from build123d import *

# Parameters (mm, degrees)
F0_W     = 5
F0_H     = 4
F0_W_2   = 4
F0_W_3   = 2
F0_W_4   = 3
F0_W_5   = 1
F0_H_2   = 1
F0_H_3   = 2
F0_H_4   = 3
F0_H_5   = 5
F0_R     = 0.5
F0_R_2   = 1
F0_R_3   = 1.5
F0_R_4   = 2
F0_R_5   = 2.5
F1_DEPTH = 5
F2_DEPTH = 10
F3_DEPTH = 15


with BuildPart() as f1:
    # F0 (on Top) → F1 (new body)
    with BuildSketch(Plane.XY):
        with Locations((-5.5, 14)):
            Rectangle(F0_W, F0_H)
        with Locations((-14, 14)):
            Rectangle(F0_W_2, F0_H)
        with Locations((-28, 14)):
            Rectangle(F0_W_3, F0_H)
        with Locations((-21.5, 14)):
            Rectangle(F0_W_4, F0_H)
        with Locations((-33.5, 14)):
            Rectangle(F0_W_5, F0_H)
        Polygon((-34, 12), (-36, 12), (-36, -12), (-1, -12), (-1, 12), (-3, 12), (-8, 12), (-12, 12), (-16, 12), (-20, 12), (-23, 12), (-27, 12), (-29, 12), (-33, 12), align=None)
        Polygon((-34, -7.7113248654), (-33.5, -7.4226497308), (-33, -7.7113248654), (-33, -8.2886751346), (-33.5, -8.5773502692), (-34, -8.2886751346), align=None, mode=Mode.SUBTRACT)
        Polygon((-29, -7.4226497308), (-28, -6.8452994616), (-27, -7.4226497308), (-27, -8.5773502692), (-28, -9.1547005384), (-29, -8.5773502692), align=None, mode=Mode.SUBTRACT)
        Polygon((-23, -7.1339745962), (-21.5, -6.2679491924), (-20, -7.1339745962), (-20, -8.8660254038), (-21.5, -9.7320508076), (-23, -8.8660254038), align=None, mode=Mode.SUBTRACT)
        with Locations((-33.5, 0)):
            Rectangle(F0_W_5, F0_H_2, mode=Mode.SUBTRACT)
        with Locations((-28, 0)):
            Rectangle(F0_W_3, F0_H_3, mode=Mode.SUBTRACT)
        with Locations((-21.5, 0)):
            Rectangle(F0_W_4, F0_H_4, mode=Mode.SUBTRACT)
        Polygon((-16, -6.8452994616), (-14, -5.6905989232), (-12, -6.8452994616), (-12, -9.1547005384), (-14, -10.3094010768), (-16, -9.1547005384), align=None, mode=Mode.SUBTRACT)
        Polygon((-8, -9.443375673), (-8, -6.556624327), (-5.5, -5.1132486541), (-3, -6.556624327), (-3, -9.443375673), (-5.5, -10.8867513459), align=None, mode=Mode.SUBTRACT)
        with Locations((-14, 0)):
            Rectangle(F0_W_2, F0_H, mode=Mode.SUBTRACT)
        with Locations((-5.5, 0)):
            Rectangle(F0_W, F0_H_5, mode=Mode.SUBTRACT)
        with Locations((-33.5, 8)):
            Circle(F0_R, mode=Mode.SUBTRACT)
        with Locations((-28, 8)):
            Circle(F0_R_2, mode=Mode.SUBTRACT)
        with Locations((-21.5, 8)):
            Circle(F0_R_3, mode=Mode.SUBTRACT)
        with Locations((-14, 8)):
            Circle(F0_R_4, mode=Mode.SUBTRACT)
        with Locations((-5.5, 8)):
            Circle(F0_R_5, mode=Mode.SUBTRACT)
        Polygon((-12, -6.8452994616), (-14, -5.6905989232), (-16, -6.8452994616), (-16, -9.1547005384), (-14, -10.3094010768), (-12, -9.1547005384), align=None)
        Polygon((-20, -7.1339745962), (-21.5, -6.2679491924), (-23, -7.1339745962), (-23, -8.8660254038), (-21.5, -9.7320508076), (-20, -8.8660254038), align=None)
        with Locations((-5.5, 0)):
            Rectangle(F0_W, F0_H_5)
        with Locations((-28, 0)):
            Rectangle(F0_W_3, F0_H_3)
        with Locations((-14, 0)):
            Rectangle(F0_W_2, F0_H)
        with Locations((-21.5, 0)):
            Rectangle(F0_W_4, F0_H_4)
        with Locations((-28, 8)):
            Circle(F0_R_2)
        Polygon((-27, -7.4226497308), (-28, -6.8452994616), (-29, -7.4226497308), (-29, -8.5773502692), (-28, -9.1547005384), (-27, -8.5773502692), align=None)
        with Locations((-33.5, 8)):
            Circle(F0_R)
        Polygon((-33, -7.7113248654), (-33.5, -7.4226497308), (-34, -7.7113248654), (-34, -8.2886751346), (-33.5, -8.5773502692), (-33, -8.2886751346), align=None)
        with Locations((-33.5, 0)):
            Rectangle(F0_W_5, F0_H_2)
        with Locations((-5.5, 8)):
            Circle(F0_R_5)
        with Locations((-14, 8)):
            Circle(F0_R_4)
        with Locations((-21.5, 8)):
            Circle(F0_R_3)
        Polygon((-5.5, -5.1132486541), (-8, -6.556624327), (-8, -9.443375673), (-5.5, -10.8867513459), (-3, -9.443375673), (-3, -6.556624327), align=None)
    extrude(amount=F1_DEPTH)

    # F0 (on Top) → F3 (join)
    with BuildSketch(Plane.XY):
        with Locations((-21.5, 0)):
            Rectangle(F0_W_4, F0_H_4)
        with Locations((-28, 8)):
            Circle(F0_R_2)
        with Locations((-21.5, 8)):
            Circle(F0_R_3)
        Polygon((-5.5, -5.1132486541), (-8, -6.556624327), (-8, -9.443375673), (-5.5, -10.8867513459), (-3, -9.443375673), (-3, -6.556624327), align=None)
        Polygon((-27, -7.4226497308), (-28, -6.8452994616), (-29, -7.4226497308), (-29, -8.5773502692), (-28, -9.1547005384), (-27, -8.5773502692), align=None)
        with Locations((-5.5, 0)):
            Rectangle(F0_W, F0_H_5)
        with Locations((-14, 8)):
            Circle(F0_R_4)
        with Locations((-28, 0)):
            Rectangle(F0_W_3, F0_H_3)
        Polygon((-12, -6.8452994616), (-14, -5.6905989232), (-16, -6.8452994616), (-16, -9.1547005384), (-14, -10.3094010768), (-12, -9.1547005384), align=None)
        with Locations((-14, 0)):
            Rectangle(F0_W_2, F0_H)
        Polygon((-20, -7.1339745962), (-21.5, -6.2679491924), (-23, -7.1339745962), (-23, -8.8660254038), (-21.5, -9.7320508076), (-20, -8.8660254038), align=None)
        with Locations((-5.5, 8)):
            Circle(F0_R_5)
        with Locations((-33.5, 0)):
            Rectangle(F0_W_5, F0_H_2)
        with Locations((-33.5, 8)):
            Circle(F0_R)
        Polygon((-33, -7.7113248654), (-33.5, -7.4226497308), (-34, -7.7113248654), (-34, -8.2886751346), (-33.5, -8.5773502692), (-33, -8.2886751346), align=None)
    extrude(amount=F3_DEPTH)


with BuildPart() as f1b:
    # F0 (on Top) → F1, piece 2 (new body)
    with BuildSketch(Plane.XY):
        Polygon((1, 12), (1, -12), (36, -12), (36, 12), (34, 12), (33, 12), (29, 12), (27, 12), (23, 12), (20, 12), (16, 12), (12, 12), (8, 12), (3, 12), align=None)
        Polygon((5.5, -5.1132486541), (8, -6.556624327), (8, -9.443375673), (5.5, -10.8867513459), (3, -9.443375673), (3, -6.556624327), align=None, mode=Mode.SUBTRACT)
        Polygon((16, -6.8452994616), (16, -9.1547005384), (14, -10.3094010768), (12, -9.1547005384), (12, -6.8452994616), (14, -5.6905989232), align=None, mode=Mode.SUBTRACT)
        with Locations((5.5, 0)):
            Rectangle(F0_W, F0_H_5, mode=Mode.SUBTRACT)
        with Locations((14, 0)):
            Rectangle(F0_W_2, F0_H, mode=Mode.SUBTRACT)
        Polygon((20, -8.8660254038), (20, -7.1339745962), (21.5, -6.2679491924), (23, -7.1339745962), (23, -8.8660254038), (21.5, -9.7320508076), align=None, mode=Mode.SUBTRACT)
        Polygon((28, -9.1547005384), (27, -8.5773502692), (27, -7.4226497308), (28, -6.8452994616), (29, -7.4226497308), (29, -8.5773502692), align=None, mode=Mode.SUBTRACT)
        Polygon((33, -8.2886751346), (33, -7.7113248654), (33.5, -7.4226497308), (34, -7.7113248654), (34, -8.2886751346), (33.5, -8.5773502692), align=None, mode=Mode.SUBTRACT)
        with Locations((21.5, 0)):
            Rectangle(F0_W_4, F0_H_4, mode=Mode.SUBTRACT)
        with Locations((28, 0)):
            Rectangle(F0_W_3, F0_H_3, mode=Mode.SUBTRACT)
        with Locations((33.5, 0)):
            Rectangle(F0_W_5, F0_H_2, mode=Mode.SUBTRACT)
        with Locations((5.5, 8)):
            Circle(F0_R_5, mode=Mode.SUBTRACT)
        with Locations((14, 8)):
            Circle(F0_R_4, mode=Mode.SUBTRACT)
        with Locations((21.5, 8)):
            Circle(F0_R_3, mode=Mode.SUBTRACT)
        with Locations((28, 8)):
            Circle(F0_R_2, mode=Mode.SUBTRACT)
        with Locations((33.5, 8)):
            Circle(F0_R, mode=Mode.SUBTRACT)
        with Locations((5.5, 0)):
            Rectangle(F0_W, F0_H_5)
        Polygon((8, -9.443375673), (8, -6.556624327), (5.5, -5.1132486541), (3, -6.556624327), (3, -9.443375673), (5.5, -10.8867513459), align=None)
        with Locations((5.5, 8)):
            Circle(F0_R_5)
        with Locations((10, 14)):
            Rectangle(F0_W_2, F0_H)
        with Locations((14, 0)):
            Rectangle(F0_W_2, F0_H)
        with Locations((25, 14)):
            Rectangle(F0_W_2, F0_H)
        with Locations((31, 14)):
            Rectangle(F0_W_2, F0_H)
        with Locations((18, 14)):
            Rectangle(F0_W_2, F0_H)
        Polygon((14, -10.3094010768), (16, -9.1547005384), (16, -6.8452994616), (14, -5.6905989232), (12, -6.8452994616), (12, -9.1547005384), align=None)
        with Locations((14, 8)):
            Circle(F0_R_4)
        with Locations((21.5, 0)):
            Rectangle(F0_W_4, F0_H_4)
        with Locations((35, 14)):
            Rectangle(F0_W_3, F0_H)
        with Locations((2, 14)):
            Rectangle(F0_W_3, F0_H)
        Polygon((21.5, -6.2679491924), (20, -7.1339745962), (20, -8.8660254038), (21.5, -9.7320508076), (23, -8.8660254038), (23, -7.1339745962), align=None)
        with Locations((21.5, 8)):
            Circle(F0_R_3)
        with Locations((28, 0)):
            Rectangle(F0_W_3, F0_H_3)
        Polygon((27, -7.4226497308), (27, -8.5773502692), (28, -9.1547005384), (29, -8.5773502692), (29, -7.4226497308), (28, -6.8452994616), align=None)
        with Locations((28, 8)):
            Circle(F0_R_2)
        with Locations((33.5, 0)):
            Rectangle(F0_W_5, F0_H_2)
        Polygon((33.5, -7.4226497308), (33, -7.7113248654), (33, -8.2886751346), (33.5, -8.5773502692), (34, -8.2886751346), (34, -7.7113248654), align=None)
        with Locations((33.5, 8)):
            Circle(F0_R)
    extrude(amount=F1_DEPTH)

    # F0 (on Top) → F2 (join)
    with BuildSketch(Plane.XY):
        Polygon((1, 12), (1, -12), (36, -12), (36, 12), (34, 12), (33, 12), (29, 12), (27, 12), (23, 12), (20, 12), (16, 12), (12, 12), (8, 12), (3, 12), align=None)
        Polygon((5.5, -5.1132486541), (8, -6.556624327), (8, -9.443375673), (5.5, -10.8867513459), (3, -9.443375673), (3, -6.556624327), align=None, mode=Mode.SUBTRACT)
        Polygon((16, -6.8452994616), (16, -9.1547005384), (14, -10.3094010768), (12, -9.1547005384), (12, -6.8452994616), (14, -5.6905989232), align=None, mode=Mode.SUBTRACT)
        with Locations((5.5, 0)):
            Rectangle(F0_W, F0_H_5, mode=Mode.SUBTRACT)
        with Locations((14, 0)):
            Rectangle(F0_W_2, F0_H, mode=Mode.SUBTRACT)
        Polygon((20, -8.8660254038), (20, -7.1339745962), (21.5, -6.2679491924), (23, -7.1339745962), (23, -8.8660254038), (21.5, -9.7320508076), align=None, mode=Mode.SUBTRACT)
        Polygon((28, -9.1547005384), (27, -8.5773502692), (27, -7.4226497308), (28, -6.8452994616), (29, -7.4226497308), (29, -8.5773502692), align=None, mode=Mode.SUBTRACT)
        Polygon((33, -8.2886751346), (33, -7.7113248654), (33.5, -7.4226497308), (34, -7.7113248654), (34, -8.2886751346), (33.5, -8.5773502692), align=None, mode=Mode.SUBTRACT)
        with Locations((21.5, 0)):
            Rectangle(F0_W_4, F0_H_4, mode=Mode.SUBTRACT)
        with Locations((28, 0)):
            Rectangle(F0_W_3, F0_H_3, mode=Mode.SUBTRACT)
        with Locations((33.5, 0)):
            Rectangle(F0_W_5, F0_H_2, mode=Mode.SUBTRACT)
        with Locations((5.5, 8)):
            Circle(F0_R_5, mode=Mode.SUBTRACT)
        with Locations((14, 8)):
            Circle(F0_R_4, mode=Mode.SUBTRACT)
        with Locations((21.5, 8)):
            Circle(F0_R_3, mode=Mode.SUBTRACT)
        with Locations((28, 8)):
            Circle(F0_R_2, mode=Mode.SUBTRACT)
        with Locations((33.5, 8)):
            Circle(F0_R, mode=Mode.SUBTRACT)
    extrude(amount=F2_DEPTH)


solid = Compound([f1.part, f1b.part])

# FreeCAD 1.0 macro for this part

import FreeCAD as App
import Part
import Sketcher

V = App.Vector
Q = App.Units.Quantity


def add_polygon(sketch, points):
    """Adds a closed chain of lines whose ends are joined by coincident constraints."""
    first, n = sketch.GeometryCount, len(points)
    for a, b in zip(points, points[1:] + points[:1]):
        sketch.addGeometry(Part.LineSegment(App.Vector(*a, 0), App.Vector(*b, 0)), False)
    for i in range(n):
        sketch.addConstraint(Sketcher.Constraint("Coincident", first + i, 2, first + (i + 1) % n, 1))

doc = App.newDocument("Part")
body = doc.addObject("PartDesign::Body", "Body")

sketch1 = body.newObject("Sketcher::SketchObject", "Sketch")
sketch1.AttachmentSupport = (doc.getObject("XY_Plane"), [""])
sketch1.MapMode = "FlatFace"
add_polygon(sketch1, [(-8, 16), (-8, 12), (-12, 12), (-12, 16), (-16, 16), (-16, 12), (-20, 12), (-20, 16), (-23, 16), (-23, 12), (-27, 12), (-27, 16), (-29, 16), (-29, 12), (-33, 12), (-33, 16), (-34, 16), (-34, 12), (-36, 12), (-36, -12), (-1, -12), (-1, 12), (-3, 12), (-3, 16)])
sketch1.addConstraint([
    Sketcher.Constraint("Vertical", 0),
    Sketcher.Constraint("Horizontal", 1),
    Sketcher.Constraint("Vertical", 2),
    Sketcher.Constraint("Horizontal", 3),
    Sketcher.Constraint("Vertical", 4),
    Sketcher.Constraint("Horizontal", 5),
    Sketcher.Constraint("Vertical", 6),
    Sketcher.Constraint("Horizontal", 7),
    Sketcher.Constraint("Vertical", 8),
    Sketcher.Constraint("Horizontal", 9),
    Sketcher.Constraint("Vertical", 10),
    Sketcher.Constraint("Horizontal", 11),
    Sketcher.Constraint("Vertical", 12),
    Sketcher.Constraint("Horizontal", 13),
    Sketcher.Constraint("Vertical", 14),
    Sketcher.Constraint("Horizontal", 15),
    Sketcher.Constraint("Vertical", 16),
    Sketcher.Constraint("Horizontal", 17),
    Sketcher.Constraint("Vertical", 18),
    Sketcher.Constraint("Horizontal", 19),
    Sketcher.Constraint("Vertical", 20),
    Sketcher.Constraint("Horizontal", 21),
    Sketcher.Constraint("Vertical", 22),
    Sketcher.Constraint("Horizontal", 23),
    Sketcher.Constraint("Horizontal", 1, 2, 4, 2),
    Sketcher.Constraint("Horizontal", 3, 2, 6, 2),
    Sketcher.Constraint("Horizontal", 5, 2, 8, 2),
    Sketcher.Constraint("Horizontal", 7, 2, 10, 2),
    Sketcher.Constraint("Horizontal", 9, 2, 12, 2),
    Sketcher.Constraint("Horizontal", 11, 2, 14, 2),
    Sketcher.Constraint("Horizontal", 13, 2, 16, 2),
    Sketcher.Constraint("Horizontal", 17, 2, 20, 2),
    Sketcher.Constraint("Horizontal", 15, 2, 22, 2),
    Sketcher.Constraint("Equal", 1, 3),
    Sketcher.Constraint("Equal", 3, 5),
    Sketcher.Constraint("Equal", 5, 9),
    Sketcher.Constraint("Equal", 9, 13),
    Sketcher.Constraint("Equal", 11, 17),
    Sketcher.Constraint("Equal", 17, 21),
    Sketcher.Constraint("Equal", 13, 0),
    Sketcher.Constraint("DistanceX", 1, 2, 1, 1, 4.0),
    Sketcher.Constraint("DistanceX", 7, 2, 7, 1, 3.0),
    Sketcher.Constraint("DistanceX", 11, 2, 11, 1, 2.0),
    Sketcher.Constraint("DistanceX", 15, 2, 15, 1, 1.0),
    Sketcher.Constraint("DistanceX", 19, 1, 19, 2, 35.0),
    Sketcher.Constraint("DistanceY", 18, 2, 18, 1, 24.0),
    Sketcher.Constraint("DistanceX", 0, 2, -1, 1, 8.0),
    Sketcher.Constraint("DistanceY", -1, 1, 0, 2, 12.0),
])
pad1 = body.newObject("PartDesign::Pad", "Pad")
pad1.Profile = sketch1
pad1.Length = 5

sketch2 = body.newObject("Sketcher::SketchObject", "Sketch001")
sketch2.AttachmentSupport = (doc.getObject("XY_Plane"), [""])
sketch2.MapMode = "FlatFace"
add_polygon(sketch2, [(-23, 1.5), (-23, -1.5), (-20, -1.5), (-20, 1.5)])
sketch2.addGeometry(Part.Circle(V(-28, 8, 0), V(0, 0, 1), 1), False)
sketch2.addGeometry(Part.Circle(V(-21.5, 8, 0), V(0, 0, 1), 1.5), False)
add_polygon(sketch2, [(-5.5, -5.1), (-8, -6.6), (-8, -9.4), (-5.5, -10.9), (-3, -9.4), (-3, -6.6)])
add_polygon(sketch2, [(-27, -7.4), (-28, -6.8), (-29, -7.4), (-29, -8.6), (-28, -9.2), (-27, -8.6)])
add_polygon(sketch2, [(-8, 2.5), (-8, -2.5), (-3, -2.5), (-3, 2.5)])
sketch2.addGeometry(Part.Circle(V(-14, 8, 0), V(0, 0, 1), 2), False)
add_polygon(sketch2, [(-29, 1), (-29, -1), (-27, -1), (-27, 1)])
add_polygon(sketch2, [(-12, -6.8), (-14, -5.7), (-16, -6.8), (-16, -9.2), (-14, -10.3), (-12, -9.2)])
add_polygon(sketch2, [(-16, 2), (-16, -2), (-12, -2), (-12, 2)])
add_polygon(sketch2, [(-20, -7.1), (-21.5, -6.3), (-23, -7.1), (-23, -8.9), (-21.5, -9.7), (-20, -8.9)])
sketch2.addGeometry(Part.Circle(V(-5.5, 8, 0), V(0, 0, 1), 2.5), False)
add_polygon(sketch2, [(-34, 0.5), (-34, -0.5), (-33, -0.5), (-33, 0.5)])
sketch2.addGeometry(Part.Circle(V(-33.5, 8, 0), V(0, 0, 1), 0.5), False)
add_polygon(sketch2, [(-33, -7.7), (-33.5, -7.4), (-34, -7.7), (-34, -8.3), (-33.5, -8.6), (-33, -8.3)])
sketch2.addConstraint([
    Sketcher.Constraint("Vertical", 0),
    Sketcher.Constraint("Horizontal", 1),
    Sketcher.Constraint("Vertical", 2),
    Sketcher.Constraint("Horizontal", 3),
    Sketcher.Constraint("Vertical", 7),
    Sketcher.Constraint("Vertical", 10),
    Sketcher.Constraint("Vertical", 14),
    Sketcher.Constraint("Vertical", 17),
    Sketcher.Constraint("Vertical", 18),
    Sketcher.Constraint("Horizontal", 19),
    Sketcher.Constraint("Vertical", 20),
    Sketcher.Constraint("Horizontal", 21),
    Sketcher.Constraint("Vertical", 23),
    Sketcher.Constraint("Horizontal", 24),
    Sketcher.Constraint("Vertical", 25),
    Sketcher.Constraint("Horizontal", 26),
    Sketcher.Constraint("Vertical", 29),
    Sketcher.Constraint("Vertical", 32),
    Sketcher.Constraint("Vertical", 33),
    Sketcher.Constraint("Horizontal", 34),
    Sketcher.Constraint("Vertical", 35),
    Sketcher.Constraint("Horizontal", 36),
    Sketcher.Constraint("Vertical", 39),
    Sketcher.Constraint("Vertical", 42),
    Sketcher.Constraint("Vertical", 44),
    Sketcher.Constraint("Horizontal", 45),
    Sketcher.Constraint("Vertical", 46),
    Sketcher.Constraint("Horizontal", 47),
    Sketcher.Constraint("Vertical", 51),
    Sketcher.Constraint("Vertical", 54),
    Sketcher.Constraint("Parallel", 6, 9),
    Sketcher.Constraint("Parallel", 8, 11),
    Sketcher.Constraint("Parallel", 11, 12),
    Sketcher.Constraint("Parallel", 9, 13),
    Sketcher.Constraint("Parallel", 12, 15),
    Sketcher.Constraint("Parallel", 13, 16),
    Sketcher.Constraint("Parallel", 15, 27),
    Sketcher.Constraint("Parallel", 16, 28),
    Sketcher.Constraint("Parallel", 27, 30),
    Sketcher.Constraint("Parallel", 28, 31),
    Sketcher.Constraint("Parallel", 30, 37),
    Sketcher.Constraint("Parallel", 31, 38),
    Sketcher.Constraint("Parallel", 37, 40),
    Sketcher.Constraint("Parallel", 38, 41),
    Sketcher.Constraint("Parallel", 40, 49),
    Sketcher.Constraint("Parallel", 41, 50),
    Sketcher.Constraint("Parallel", 49, 52),
    Sketcher.Constraint("Parallel", 50, 53),
    Sketcher.Constraint("Horizontal", 4, 3, 5, 3),
    Sketcher.Constraint("Horizontal", 5, 3, 22, 3),
    Sketcher.Constraint("Horizontal", 22, 3, 43, 3),
    Sketcher.Constraint("Horizontal", 43, 3, 48, 3),
    Sketcher.Constraint("Horizontal", 7, 2, 9, 2),
    Sketcher.Constraint("Horizontal", 6, 2, 10, 2),
    Sketcher.Constraint("Horizontal", 14, 2, 16, 2),
    Sketcher.Constraint("Horizontal", 13, 2, 17, 2),
    Sketcher.Constraint("Horizontal", 12, 2, 28, 2),
    Sketcher.Constraint("Horizontal", 15, 2, 29, 2),
    Sketcher.Constraint("Horizontal", 29, 2, 31, 2),
    Sketcher.Constraint("Horizontal", 28, 2, 32, 2),
    Sketcher.Constraint("Horizontal", 39, 2, 41, 2),
    Sketcher.Constraint("Horizontal", 38, 2, 42, 2),
    Sketcher.Constraint("Horizontal", 17, 2, 49, 2),
    Sketcher.Constraint("Horizontal", 16, 2, 52, 2),
    Sketcher.Constraint("Horizontal", 51, 2, 53, 2),
    Sketcher.Constraint("Horizontal", 50, 2, 54, 2),
    Sketcher.Constraint("Vertical", 43, 3, 8, 2),
    Sketcher.Constraint("Vertical", 8, 2, 11, 2),
    Sketcher.Constraint("Vertical", 4, 3, 12, 2),
    Sketcher.Constraint("Vertical", 7, 2, 18, 2),
    Sketcher.Constraint("Vertical", 10, 2, 19, 2),
    Sketcher.Constraint("Vertical", 14, 2, 23, 2),
    Sketcher.Constraint("Vertical", 17, 2, 24, 2),
    Sketcher.Constraint("Vertical", 22, 3, 27, 2),
    Sketcher.Constraint("Vertical", 29, 2, 33, 2),
    Sketcher.Constraint("Vertical", 32, 2, 34, 2),
    Sketcher.Constraint("Vertical", 5, 3, 37, 2),
    Sketcher.Constraint("Vertical", 3, 2, 38, 2),
    Sketcher.Constraint("Vertical", 2, 2, 41, 2),
    Sketcher.Constraint("Vertical", 48, 3, 49, 2),
    Sketcher.Constraint("Vertical", 47, 2, 50, 2),
    Sketcher.Constraint("Vertical", 46, 2, 53, 2),
    Sketcher.Constraint("Equal", 3, 0),
    Sketcher.Constraint("Equal", 21, 18),
    Sketcher.Constraint("Equal", 26, 23),
    Sketcher.Constraint("Equal", 36, 33),
    Sketcher.Constraint("Equal", 47, 44),
    Sketcher.Constraint("Diameter", 4, 2.0),
    Sketcher.Constraint("Diameter", 5, 3.0),
    Sketcher.Constraint("Diameter", 22, 4.0),
    Sketcher.Constraint("Diameter", 43, 5.0),
    Sketcher.Constraint("Diameter", 48, 1.0),
    Sketcher.Constraint("DistanceX", 1, 1, 1, 2, 3.0),
    Sketcher.Constraint("DistanceX", 19, 1, 19, 2, 5.0),
    Sketcher.Constraint("DistanceX", 24, 1, 24, 2, 2.0),
    Sketcher.Constraint("DistanceX", 34, 1, 34, 2, 4.0),
    Sketcher.Constraint("DistanceX", 45, 1, 45, 2, 1.0),
    Sketcher.Constraint("Angle", 6, Q("-150 deg")),
    Sketcher.Constraint("DistanceX", 4, 3, -1, 1, 28.0),
    Sketcher.Constraint("DistanceY", -1, 1, 4, 3, 8.0),
    Sketcher.Constraint("DistanceX", 22, 3, -1, 1, 14.0),
    Sketcher.Constraint("DistanceX", 0, 2, -1, 1, 23.0),
    Sketcher.Constraint("DistanceX", 6, 2, -1, 1, 8.0),
    Sketcher.Constraint("DistanceY", 23, 2, -1, 1, 1.0),
    Sketcher.Constraint("DistanceY", 33, 2, -1, 1, 2.0),
    Sketcher.Constraint("DistanceX", 44, 2, -1, 1, 34.0),
    Sketcher.Constraint("DistanceY", 0, 2, -1, 1, 1.5),
    Sketcher.Constraint("DistanceY", 18, 2, -1, 1, 2.5),
    Sketcher.Constraint("DistanceY", 44, 2, -1, 1, 0.5),
    Sketcher.Constraint("DistanceY", 14, 2, 14, 1, 1.154701),
    Sketcher.Constraint("DistanceY", 7, 2, 7, 1, 2.886751),
    Sketcher.Constraint("DistanceY", 39, 2, 39, 1, 1.732051),
    Sketcher.Constraint("DistanceY", 12, 2, -1, 1, 6.845299),
    Sketcher.Constraint("DistanceY", 17, 2, 37, 2, 1.154701),
    Sketcher.Constraint("DistanceY", 8, 2, -1, 1, 10.886751),
])
pad2 = body.newObject("PartDesign::Pad", "Pad001")
pad2.Profile = sketch2
pad2.Length = 15
body2 = doc.addObject("PartDesign::Body", "Body001")

sketch3 = body2.newObject("Sketcher::SketchObject", "Sketch002")
sketch3.AttachmentSupport = (doc.getObject("XY_Plane001"), [""])
sketch3.MapMode = "FlatFace"
add_polygon(sketch3, [(1, -12), (36, -12), (36, 16), (34, 16), (34, 12), (33, 12), (33, 16), (29, 16), (29, 12), (27, 12), (27, 16), (23, 16), (23, 12), (20, 12), (20, 16), (16, 16), (16, 12), (12, 12), (12, 16), (8, 16), (8, 12), (3, 12), (3, 16), (1, 16)])
sketch3.addConstraint([
    Sketcher.Constraint("Horizontal", 0),
    Sketcher.Constraint("Vertical", 1),
    Sketcher.Constraint("Horizontal", 2),
    Sketcher.Constraint("Vertical", 3),
    Sketcher.Constraint("Horizontal", 4),
    Sketcher.Constraint("Vertical", 5),
    Sketcher.Constraint("Horizontal", 6),
    Sketcher.Constraint("Vertical", 7),
    Sketcher.Constraint("Horizontal", 8),
    Sketcher.Constraint("Vertical", 9),
    Sketcher.Constraint("Horizontal", 10),
    Sketcher.Constraint("Vertical", 11),
    Sketcher.Constraint("Horizontal", 12),
    Sketcher.Constraint("Vertical", 13),
    Sketcher.Constraint("Horizontal", 14),
    Sketcher.Constraint("Vertical", 15),
    Sketcher.Constraint("Horizontal", 16),
    Sketcher.Constraint("Vertical", 17),
    Sketcher.Constraint("Horizontal", 18),
    Sketcher.Constraint("Vertical", 19),
    Sketcher.Constraint("Horizontal", 20),
    Sketcher.Constraint("Vertical", 21),
    Sketcher.Constraint("Horizontal", 22),
    Sketcher.Constraint("Vertical", 23),
    Sketcher.Constraint("Horizontal", 2, 2, 5, 2),
    Sketcher.Constraint("Horizontal", 4, 2, 7, 2),
    Sketcher.Constraint("Horizontal", 6, 2, 9, 2),
    Sketcher.Constraint("Horizontal", 8, 2, 11, 2),
    Sketcher.Constraint("Horizontal", 10, 2, 13, 2),
    Sketcher.Constraint("Horizontal", 12, 2, 15, 2),
    Sketcher.Constraint("Horizontal", 14, 2, 17, 2),
    Sketcher.Constraint("Horizontal", 16, 2, 19, 2),
    Sketcher.Constraint("Horizontal", 18, 2, 21, 2),
    Sketcher.Constraint("Equal", 2, 8),
    Sketcher.Constraint("Equal", 6, 10),
    Sketcher.Constraint("Equal", 10, 14),
    Sketcher.Constraint("Equal", 14, 16),
    Sketcher.Constraint("Equal", 16, 18),
    Sketcher.Constraint("Equal", 8, 22),
    Sketcher.Constraint("Equal", 18, 3),
    Sketcher.Constraint("DistanceX", 0, 1, 0, 2, 35.0),
    Sketcher.Constraint("DistanceX", 2, 2, 2, 1, 2.0),
    Sketcher.Constraint("DistanceX", 4, 2, 4, 1, 1.0),
    Sketcher.Constraint("DistanceX", 6, 2, 6, 1, 4.0),
    Sketcher.Constraint("DistanceX", 12, 2, 12, 1, 3.0),
    Sketcher.Constraint("DistanceY", 1, 1, 1, 2, 28.0),
    Sketcher.Constraint("DistanceX", -1, 1, 0, 2, 36.0),
    Sketcher.Constraint("DistanceY", 0, 2, -1, 1, 12.0),
])
pad3 = body2.newObject("PartDesign::Pad", "Pad002")
pad3.Profile = sketch3
pad3.Length = 5

sketch4 = body2.newObject("Sketcher::SketchObject", "Sketch003")
sketch4.AttachmentSupport = (doc.getObject("XY_Plane001"), [""])
sketch4.MapMode = "FlatFace"
add_polygon(sketch4, [(1, 12), (1, -12), (36, -12), (36, 12)])
add_polygon(sketch4, [(3, -6.6), (5.5, -5.1), (8, -6.6), (8, -9.4), (5.5, -10.9), (3, -9.4)])
add_polygon(sketch4, [(14, -5.7), (16, -6.8), (16, -9.2), (14, -10.3), (12, -9.2), (12, -6.8)])
add_polygon(sketch4, [(21.5, -9.7), (20, -8.9), (20, -7.1), (21.5, -6.3), (23, -7.1), (23, -8.9)])
add_polygon(sketch4, [(29, -8.6), (28, -9.2), (27, -8.6), (27, -7.4), (28, -6.8), (29, -7.4)])
add_polygon(sketch4, [(33.5, -8.6), (33, -8.3), (33, -7.7), (33.5, -7.4), (34, -7.7), (34, -8.3)])
add_polygon(sketch4, [(8, -2.5), (3, -2.5), (3, 2.5), (8, 2.5)])
add_polygon(sketch4, [(16, -2), (12, -2), (12, 2), (16, 2)])
sketch4.addGeometry(Part.Circle(V(5.5, 8, 0), V(0, 0, 1), 2.5), False)
sketch4.addGeometry(Part.Circle(V(14, 8, 0), V(0, 0, 1), 2), False)
add_polygon(sketch4, [(23, -1.5), (20, -1.5), (20, 1.5), (23, 1.5)])
add_polygon(sketch4, [(29, -1), (27, -1), (27, 1), (29, 1)])
add_polygon(sketch4, [(34, -0.5), (33, -0.5), (33, 0.5), (34, 0.5)])
sketch4.addGeometry(Part.Circle(V(21.5, 8, 0), V(0, 0, 1), 1.5), False)
sketch4.addGeometry(Part.Circle(V(28, 8, 0), V(0, 0, 1), 1), False)
sketch4.addGeometry(Part.Circle(V(33.5, 8, 0), V(0, 0, 1), 0.5), False)
sketch4.addConstraint([
    Sketcher.Constraint("Vertical", 0),
    Sketcher.Constraint("Horizontal", 1),
    Sketcher.Constraint("Vertical", 2),
    Sketcher.Constraint("Horizontal", 3),
    Sketcher.Constraint("Vertical", 6),
    Sketcher.Constraint("Vertical", 9),
    Sketcher.Constraint("Vertical", 11),
    Sketcher.Constraint("Vertical", 14),
    Sketcher.Constraint("Vertical", 17),
    Sketcher.Constraint("Vertical", 20),
    Sketcher.Constraint("Vertical", 24),
    Sketcher.Constraint("Vertical", 27),
    Sketcher.Constraint("Vertical", 29),
    Sketcher.Constraint("Vertical", 32),
    Sketcher.Constraint("Horizontal", 34),
    Sketcher.Constraint("Vertical", 35),
    Sketcher.Constraint("Horizontal", 36),
    Sketcher.Constraint("Vertical", 37),
    Sketcher.Constraint("Horizontal", 38),
    Sketcher.Constraint("Vertical", 39),
    Sketcher.Constraint("Horizontal", 40),
    Sketcher.Constraint("Vertical", 41),
    Sketcher.Constraint("Horizontal", 44),
    Sketcher.Constraint("Vertical", 45),
    Sketcher.Constraint("Horizontal", 46),
    Sketcher.Constraint("Vertical", 47),
    Sketcher.Constraint("Horizontal", 48),
    Sketcher.Constraint("Vertical", 49),
    Sketcher.Constraint("Horizontal", 50),
    Sketcher.Constraint("Vertical", 51),
    Sketcher.Constraint("Horizontal", 52),
    Sketcher.Constraint("Vertical", 53),
    Sketcher.Constraint("Horizontal", 54),
    Sketcher.Constraint("Vertical", 55),
    Sketcher.Constraint("Parallel", 4, 7),
    Sketcher.Constraint("Parallel", 5, 8),
    Sketcher.Constraint("Parallel", 8, 10),
    Sketcher.Constraint("Parallel", 7, 12),
    Sketcher.Constraint("Parallel", 10, 13),
    Sketcher.Constraint("Parallel", 12, 15),
    Sketcher.Constraint("Parallel", 13, 16),
    Sketcher.Constraint("Parallel", 15, 18),
    Sketcher.Constraint("Parallel", 16, 19),
    Sketcher.Constraint("Parallel", 18, 21),
    Sketcher.Constraint("Parallel", 21, 22),
    Sketcher.Constraint("Parallel", 19, 23),
    Sketcher.Constraint("Parallel", 22, 25),
    Sketcher.Constraint("Parallel", 23, 26),
    Sketcher.Constraint("Parallel", 26, 28),
    Sketcher.Constraint("Parallel", 25, 30),
    Sketcher.Constraint("Parallel", 28, 31),
    Sketcher.Constraint("Parallel", 30, 33),
    Sketcher.Constraint("Horizontal", 42, 3, 43, 3),
    Sketcher.Constraint("Horizontal", 43, 3, 56, 3),
    Sketcher.Constraint("Horizontal", 56, 3, 57, 3),
    Sketcher.Constraint("Horizontal", 57, 3, 58, 3),
    Sketcher.Constraint("Horizontal", 6, 2, 8, 2),
    Sketcher.Constraint("Horizontal", 5, 2, 9, 2),
    Sketcher.Constraint("Horizontal", 11, 2, 13, 2),
    Sketcher.Constraint("Horizontal", 10, 2, 14, 2),
    Sketcher.Constraint("Horizontal", 17, 2, 19, 2),
    Sketcher.Constraint("Horizontal", 16, 2, 20, 2),
    Sketcher.Constraint("Horizontal", 13, 2, 22, 2),
    Sketcher.Constraint("Horizontal", 14, 2, 25, 2),
    Sketcher.Constraint("Horizontal", 24, 2, 26, 2),
    Sketcher.Constraint("Horizontal", 23, 2, 27, 2),
    Sketcher.Constraint("Horizontal", 26, 2, 30, 2),
    Sketcher.Constraint("Horizontal", 29, 2, 31, 2),
    Sketcher.Constraint("Horizontal", 28, 2, 32, 2),
    Sketcher.Constraint("Horizontal", 27, 2, 33, 2),
    Sketcher.Constraint("Vertical", 42, 3, 4, 2),
    Sketcher.Constraint("Vertical", 4, 2, 7, 2),
    Sketcher.Constraint("Vertical", 43, 3, 12, 2),
    Sketcher.Constraint("Vertical", 56, 3, 18, 2),
    Sketcher.Constraint("Vertical", 57, 3, 22, 2),
    Sketcher.Constraint("Vertical", 58, 3, 30, 2),
    Sketcher.Constraint("Vertical", 9, 2, 34, 2),
    Sketcher.Constraint("Vertical", 6, 2, 36, 2),
    Sketcher.Constraint("Vertical", 14, 2, 38, 2),
    Sketcher.Constraint("Vertical", 11, 2, 40, 2),
    Sketcher.Constraint("Vertical", 17, 2, 44, 2),
    Sketcher.Constraint("Vertical", 20, 2, 46, 2),
    Sketcher.Constraint("Vertical", 24, 2, 48, 2),
    Sketcher.Constraint("Vertical", 27, 2, 50, 2),
    Sketcher.Constraint("Vertical", 29, 2, 52, 2),
    Sketcher.Constraint("Vertical", 32, 2, 54, 2),
    Sketcher.Constraint("Equal", 36, 35),
    Sketcher.Constraint("Equal", 40, 39),
    Sketcher.Constraint("Equal", 46, 45),
    Sketcher.Constraint("Equal", 50, 49),
    Sketcher.Constraint("Equal", 54, 53),
    Sketcher.Constraint("Diameter", 42, 5.0),
    Sketcher.Constraint("Diameter", 43, 4.0),
    Sketcher.Constraint("Diameter", 56, 3.0),
    Sketcher.Constraint("Diameter", 57, 2.0),
    Sketcher.Constraint("Diameter", 58, 1.0),
    Sketcher.Constraint("DistanceX", 1, 1, 1, 2, 35.0),
    Sketcher.Constraint("DistanceX", 34, 2, 34, 1, 5.0),
    Sketcher.Constraint("DistanceX", 38, 2, 38, 1, 4.0),
    Sketcher.Constraint("DistanceX", 44, 2, 44, 1, 3.0),
    Sketcher.Constraint("DistanceX", 48, 2, 48, 1, 2.0),
    Sketcher.Constraint("DistanceX", 52, 2, 52, 1, 1.0),
    Sketcher.Constraint("DistanceY", 0, 2, 0, 1, 24.0),
    Sketcher.Constraint("Angle", 4, Q("30 deg")),
    Sketcher.Constraint("DistanceY", -1, 1, 42, 3, 8.0),
    Sketcher.Constraint("DistanceX", -1, 1, 43, 3, 14.0),
    Sketcher.Constraint("DistanceX", -1, 1, 57, 3, 28.0),
    Sketcher.Constraint("DistanceX", -1, 1, 0, 2, 1.0),
    Sketcher.Constraint("DistanceY", 0, 2, -1, 1, 12.0),
    Sketcher.Constraint("DistanceX", -1, 1, 5, 2, 8.0),
    Sketcher.Constraint("DistanceX", -1, 1, 16, 2, 20.0),
    Sketcher.Constraint("DistanceX", -1, 1, 28, 2, 33.0),
    Sketcher.Constraint("DistanceY", 38, 2, -1, 1, 2.0),
    Sketcher.Constraint("DistanceY", 48, 2, -1, 1, 1.0),
    Sketcher.Constraint("DistanceY", 34, 2, -1, 1, 2.5),
    Sketcher.Constraint("DistanceY", 44, 2, -1, 1, 1.5),
    Sketcher.Constraint("DistanceY", 52, 2, -1, 1, 0.5),
    Sketcher.Constraint("DistanceY", 11, 2, 11, 1, 2.309401),
    Sketcher.Constraint("DistanceY", 6, 2, 6, 1, 2.886751),
    Sketcher.Constraint("DistanceY", 17, 1, 17, 2, 1.732051),
    Sketcher.Constraint("DistanceY", 10, 2, -1, 1, 6.845299),
    Sketcher.Constraint("DistanceY", 21, 2, 23, 2, 1.154701),
    Sketcher.Constraint("DistanceY", 4, 2, -1, 1, 5.113249),
])
pad4 = body2.newObject("PartDesign::Pad", "Pad003")
pad4.Profile = sketch4
pad4.Length = 10

doc.recompute()
